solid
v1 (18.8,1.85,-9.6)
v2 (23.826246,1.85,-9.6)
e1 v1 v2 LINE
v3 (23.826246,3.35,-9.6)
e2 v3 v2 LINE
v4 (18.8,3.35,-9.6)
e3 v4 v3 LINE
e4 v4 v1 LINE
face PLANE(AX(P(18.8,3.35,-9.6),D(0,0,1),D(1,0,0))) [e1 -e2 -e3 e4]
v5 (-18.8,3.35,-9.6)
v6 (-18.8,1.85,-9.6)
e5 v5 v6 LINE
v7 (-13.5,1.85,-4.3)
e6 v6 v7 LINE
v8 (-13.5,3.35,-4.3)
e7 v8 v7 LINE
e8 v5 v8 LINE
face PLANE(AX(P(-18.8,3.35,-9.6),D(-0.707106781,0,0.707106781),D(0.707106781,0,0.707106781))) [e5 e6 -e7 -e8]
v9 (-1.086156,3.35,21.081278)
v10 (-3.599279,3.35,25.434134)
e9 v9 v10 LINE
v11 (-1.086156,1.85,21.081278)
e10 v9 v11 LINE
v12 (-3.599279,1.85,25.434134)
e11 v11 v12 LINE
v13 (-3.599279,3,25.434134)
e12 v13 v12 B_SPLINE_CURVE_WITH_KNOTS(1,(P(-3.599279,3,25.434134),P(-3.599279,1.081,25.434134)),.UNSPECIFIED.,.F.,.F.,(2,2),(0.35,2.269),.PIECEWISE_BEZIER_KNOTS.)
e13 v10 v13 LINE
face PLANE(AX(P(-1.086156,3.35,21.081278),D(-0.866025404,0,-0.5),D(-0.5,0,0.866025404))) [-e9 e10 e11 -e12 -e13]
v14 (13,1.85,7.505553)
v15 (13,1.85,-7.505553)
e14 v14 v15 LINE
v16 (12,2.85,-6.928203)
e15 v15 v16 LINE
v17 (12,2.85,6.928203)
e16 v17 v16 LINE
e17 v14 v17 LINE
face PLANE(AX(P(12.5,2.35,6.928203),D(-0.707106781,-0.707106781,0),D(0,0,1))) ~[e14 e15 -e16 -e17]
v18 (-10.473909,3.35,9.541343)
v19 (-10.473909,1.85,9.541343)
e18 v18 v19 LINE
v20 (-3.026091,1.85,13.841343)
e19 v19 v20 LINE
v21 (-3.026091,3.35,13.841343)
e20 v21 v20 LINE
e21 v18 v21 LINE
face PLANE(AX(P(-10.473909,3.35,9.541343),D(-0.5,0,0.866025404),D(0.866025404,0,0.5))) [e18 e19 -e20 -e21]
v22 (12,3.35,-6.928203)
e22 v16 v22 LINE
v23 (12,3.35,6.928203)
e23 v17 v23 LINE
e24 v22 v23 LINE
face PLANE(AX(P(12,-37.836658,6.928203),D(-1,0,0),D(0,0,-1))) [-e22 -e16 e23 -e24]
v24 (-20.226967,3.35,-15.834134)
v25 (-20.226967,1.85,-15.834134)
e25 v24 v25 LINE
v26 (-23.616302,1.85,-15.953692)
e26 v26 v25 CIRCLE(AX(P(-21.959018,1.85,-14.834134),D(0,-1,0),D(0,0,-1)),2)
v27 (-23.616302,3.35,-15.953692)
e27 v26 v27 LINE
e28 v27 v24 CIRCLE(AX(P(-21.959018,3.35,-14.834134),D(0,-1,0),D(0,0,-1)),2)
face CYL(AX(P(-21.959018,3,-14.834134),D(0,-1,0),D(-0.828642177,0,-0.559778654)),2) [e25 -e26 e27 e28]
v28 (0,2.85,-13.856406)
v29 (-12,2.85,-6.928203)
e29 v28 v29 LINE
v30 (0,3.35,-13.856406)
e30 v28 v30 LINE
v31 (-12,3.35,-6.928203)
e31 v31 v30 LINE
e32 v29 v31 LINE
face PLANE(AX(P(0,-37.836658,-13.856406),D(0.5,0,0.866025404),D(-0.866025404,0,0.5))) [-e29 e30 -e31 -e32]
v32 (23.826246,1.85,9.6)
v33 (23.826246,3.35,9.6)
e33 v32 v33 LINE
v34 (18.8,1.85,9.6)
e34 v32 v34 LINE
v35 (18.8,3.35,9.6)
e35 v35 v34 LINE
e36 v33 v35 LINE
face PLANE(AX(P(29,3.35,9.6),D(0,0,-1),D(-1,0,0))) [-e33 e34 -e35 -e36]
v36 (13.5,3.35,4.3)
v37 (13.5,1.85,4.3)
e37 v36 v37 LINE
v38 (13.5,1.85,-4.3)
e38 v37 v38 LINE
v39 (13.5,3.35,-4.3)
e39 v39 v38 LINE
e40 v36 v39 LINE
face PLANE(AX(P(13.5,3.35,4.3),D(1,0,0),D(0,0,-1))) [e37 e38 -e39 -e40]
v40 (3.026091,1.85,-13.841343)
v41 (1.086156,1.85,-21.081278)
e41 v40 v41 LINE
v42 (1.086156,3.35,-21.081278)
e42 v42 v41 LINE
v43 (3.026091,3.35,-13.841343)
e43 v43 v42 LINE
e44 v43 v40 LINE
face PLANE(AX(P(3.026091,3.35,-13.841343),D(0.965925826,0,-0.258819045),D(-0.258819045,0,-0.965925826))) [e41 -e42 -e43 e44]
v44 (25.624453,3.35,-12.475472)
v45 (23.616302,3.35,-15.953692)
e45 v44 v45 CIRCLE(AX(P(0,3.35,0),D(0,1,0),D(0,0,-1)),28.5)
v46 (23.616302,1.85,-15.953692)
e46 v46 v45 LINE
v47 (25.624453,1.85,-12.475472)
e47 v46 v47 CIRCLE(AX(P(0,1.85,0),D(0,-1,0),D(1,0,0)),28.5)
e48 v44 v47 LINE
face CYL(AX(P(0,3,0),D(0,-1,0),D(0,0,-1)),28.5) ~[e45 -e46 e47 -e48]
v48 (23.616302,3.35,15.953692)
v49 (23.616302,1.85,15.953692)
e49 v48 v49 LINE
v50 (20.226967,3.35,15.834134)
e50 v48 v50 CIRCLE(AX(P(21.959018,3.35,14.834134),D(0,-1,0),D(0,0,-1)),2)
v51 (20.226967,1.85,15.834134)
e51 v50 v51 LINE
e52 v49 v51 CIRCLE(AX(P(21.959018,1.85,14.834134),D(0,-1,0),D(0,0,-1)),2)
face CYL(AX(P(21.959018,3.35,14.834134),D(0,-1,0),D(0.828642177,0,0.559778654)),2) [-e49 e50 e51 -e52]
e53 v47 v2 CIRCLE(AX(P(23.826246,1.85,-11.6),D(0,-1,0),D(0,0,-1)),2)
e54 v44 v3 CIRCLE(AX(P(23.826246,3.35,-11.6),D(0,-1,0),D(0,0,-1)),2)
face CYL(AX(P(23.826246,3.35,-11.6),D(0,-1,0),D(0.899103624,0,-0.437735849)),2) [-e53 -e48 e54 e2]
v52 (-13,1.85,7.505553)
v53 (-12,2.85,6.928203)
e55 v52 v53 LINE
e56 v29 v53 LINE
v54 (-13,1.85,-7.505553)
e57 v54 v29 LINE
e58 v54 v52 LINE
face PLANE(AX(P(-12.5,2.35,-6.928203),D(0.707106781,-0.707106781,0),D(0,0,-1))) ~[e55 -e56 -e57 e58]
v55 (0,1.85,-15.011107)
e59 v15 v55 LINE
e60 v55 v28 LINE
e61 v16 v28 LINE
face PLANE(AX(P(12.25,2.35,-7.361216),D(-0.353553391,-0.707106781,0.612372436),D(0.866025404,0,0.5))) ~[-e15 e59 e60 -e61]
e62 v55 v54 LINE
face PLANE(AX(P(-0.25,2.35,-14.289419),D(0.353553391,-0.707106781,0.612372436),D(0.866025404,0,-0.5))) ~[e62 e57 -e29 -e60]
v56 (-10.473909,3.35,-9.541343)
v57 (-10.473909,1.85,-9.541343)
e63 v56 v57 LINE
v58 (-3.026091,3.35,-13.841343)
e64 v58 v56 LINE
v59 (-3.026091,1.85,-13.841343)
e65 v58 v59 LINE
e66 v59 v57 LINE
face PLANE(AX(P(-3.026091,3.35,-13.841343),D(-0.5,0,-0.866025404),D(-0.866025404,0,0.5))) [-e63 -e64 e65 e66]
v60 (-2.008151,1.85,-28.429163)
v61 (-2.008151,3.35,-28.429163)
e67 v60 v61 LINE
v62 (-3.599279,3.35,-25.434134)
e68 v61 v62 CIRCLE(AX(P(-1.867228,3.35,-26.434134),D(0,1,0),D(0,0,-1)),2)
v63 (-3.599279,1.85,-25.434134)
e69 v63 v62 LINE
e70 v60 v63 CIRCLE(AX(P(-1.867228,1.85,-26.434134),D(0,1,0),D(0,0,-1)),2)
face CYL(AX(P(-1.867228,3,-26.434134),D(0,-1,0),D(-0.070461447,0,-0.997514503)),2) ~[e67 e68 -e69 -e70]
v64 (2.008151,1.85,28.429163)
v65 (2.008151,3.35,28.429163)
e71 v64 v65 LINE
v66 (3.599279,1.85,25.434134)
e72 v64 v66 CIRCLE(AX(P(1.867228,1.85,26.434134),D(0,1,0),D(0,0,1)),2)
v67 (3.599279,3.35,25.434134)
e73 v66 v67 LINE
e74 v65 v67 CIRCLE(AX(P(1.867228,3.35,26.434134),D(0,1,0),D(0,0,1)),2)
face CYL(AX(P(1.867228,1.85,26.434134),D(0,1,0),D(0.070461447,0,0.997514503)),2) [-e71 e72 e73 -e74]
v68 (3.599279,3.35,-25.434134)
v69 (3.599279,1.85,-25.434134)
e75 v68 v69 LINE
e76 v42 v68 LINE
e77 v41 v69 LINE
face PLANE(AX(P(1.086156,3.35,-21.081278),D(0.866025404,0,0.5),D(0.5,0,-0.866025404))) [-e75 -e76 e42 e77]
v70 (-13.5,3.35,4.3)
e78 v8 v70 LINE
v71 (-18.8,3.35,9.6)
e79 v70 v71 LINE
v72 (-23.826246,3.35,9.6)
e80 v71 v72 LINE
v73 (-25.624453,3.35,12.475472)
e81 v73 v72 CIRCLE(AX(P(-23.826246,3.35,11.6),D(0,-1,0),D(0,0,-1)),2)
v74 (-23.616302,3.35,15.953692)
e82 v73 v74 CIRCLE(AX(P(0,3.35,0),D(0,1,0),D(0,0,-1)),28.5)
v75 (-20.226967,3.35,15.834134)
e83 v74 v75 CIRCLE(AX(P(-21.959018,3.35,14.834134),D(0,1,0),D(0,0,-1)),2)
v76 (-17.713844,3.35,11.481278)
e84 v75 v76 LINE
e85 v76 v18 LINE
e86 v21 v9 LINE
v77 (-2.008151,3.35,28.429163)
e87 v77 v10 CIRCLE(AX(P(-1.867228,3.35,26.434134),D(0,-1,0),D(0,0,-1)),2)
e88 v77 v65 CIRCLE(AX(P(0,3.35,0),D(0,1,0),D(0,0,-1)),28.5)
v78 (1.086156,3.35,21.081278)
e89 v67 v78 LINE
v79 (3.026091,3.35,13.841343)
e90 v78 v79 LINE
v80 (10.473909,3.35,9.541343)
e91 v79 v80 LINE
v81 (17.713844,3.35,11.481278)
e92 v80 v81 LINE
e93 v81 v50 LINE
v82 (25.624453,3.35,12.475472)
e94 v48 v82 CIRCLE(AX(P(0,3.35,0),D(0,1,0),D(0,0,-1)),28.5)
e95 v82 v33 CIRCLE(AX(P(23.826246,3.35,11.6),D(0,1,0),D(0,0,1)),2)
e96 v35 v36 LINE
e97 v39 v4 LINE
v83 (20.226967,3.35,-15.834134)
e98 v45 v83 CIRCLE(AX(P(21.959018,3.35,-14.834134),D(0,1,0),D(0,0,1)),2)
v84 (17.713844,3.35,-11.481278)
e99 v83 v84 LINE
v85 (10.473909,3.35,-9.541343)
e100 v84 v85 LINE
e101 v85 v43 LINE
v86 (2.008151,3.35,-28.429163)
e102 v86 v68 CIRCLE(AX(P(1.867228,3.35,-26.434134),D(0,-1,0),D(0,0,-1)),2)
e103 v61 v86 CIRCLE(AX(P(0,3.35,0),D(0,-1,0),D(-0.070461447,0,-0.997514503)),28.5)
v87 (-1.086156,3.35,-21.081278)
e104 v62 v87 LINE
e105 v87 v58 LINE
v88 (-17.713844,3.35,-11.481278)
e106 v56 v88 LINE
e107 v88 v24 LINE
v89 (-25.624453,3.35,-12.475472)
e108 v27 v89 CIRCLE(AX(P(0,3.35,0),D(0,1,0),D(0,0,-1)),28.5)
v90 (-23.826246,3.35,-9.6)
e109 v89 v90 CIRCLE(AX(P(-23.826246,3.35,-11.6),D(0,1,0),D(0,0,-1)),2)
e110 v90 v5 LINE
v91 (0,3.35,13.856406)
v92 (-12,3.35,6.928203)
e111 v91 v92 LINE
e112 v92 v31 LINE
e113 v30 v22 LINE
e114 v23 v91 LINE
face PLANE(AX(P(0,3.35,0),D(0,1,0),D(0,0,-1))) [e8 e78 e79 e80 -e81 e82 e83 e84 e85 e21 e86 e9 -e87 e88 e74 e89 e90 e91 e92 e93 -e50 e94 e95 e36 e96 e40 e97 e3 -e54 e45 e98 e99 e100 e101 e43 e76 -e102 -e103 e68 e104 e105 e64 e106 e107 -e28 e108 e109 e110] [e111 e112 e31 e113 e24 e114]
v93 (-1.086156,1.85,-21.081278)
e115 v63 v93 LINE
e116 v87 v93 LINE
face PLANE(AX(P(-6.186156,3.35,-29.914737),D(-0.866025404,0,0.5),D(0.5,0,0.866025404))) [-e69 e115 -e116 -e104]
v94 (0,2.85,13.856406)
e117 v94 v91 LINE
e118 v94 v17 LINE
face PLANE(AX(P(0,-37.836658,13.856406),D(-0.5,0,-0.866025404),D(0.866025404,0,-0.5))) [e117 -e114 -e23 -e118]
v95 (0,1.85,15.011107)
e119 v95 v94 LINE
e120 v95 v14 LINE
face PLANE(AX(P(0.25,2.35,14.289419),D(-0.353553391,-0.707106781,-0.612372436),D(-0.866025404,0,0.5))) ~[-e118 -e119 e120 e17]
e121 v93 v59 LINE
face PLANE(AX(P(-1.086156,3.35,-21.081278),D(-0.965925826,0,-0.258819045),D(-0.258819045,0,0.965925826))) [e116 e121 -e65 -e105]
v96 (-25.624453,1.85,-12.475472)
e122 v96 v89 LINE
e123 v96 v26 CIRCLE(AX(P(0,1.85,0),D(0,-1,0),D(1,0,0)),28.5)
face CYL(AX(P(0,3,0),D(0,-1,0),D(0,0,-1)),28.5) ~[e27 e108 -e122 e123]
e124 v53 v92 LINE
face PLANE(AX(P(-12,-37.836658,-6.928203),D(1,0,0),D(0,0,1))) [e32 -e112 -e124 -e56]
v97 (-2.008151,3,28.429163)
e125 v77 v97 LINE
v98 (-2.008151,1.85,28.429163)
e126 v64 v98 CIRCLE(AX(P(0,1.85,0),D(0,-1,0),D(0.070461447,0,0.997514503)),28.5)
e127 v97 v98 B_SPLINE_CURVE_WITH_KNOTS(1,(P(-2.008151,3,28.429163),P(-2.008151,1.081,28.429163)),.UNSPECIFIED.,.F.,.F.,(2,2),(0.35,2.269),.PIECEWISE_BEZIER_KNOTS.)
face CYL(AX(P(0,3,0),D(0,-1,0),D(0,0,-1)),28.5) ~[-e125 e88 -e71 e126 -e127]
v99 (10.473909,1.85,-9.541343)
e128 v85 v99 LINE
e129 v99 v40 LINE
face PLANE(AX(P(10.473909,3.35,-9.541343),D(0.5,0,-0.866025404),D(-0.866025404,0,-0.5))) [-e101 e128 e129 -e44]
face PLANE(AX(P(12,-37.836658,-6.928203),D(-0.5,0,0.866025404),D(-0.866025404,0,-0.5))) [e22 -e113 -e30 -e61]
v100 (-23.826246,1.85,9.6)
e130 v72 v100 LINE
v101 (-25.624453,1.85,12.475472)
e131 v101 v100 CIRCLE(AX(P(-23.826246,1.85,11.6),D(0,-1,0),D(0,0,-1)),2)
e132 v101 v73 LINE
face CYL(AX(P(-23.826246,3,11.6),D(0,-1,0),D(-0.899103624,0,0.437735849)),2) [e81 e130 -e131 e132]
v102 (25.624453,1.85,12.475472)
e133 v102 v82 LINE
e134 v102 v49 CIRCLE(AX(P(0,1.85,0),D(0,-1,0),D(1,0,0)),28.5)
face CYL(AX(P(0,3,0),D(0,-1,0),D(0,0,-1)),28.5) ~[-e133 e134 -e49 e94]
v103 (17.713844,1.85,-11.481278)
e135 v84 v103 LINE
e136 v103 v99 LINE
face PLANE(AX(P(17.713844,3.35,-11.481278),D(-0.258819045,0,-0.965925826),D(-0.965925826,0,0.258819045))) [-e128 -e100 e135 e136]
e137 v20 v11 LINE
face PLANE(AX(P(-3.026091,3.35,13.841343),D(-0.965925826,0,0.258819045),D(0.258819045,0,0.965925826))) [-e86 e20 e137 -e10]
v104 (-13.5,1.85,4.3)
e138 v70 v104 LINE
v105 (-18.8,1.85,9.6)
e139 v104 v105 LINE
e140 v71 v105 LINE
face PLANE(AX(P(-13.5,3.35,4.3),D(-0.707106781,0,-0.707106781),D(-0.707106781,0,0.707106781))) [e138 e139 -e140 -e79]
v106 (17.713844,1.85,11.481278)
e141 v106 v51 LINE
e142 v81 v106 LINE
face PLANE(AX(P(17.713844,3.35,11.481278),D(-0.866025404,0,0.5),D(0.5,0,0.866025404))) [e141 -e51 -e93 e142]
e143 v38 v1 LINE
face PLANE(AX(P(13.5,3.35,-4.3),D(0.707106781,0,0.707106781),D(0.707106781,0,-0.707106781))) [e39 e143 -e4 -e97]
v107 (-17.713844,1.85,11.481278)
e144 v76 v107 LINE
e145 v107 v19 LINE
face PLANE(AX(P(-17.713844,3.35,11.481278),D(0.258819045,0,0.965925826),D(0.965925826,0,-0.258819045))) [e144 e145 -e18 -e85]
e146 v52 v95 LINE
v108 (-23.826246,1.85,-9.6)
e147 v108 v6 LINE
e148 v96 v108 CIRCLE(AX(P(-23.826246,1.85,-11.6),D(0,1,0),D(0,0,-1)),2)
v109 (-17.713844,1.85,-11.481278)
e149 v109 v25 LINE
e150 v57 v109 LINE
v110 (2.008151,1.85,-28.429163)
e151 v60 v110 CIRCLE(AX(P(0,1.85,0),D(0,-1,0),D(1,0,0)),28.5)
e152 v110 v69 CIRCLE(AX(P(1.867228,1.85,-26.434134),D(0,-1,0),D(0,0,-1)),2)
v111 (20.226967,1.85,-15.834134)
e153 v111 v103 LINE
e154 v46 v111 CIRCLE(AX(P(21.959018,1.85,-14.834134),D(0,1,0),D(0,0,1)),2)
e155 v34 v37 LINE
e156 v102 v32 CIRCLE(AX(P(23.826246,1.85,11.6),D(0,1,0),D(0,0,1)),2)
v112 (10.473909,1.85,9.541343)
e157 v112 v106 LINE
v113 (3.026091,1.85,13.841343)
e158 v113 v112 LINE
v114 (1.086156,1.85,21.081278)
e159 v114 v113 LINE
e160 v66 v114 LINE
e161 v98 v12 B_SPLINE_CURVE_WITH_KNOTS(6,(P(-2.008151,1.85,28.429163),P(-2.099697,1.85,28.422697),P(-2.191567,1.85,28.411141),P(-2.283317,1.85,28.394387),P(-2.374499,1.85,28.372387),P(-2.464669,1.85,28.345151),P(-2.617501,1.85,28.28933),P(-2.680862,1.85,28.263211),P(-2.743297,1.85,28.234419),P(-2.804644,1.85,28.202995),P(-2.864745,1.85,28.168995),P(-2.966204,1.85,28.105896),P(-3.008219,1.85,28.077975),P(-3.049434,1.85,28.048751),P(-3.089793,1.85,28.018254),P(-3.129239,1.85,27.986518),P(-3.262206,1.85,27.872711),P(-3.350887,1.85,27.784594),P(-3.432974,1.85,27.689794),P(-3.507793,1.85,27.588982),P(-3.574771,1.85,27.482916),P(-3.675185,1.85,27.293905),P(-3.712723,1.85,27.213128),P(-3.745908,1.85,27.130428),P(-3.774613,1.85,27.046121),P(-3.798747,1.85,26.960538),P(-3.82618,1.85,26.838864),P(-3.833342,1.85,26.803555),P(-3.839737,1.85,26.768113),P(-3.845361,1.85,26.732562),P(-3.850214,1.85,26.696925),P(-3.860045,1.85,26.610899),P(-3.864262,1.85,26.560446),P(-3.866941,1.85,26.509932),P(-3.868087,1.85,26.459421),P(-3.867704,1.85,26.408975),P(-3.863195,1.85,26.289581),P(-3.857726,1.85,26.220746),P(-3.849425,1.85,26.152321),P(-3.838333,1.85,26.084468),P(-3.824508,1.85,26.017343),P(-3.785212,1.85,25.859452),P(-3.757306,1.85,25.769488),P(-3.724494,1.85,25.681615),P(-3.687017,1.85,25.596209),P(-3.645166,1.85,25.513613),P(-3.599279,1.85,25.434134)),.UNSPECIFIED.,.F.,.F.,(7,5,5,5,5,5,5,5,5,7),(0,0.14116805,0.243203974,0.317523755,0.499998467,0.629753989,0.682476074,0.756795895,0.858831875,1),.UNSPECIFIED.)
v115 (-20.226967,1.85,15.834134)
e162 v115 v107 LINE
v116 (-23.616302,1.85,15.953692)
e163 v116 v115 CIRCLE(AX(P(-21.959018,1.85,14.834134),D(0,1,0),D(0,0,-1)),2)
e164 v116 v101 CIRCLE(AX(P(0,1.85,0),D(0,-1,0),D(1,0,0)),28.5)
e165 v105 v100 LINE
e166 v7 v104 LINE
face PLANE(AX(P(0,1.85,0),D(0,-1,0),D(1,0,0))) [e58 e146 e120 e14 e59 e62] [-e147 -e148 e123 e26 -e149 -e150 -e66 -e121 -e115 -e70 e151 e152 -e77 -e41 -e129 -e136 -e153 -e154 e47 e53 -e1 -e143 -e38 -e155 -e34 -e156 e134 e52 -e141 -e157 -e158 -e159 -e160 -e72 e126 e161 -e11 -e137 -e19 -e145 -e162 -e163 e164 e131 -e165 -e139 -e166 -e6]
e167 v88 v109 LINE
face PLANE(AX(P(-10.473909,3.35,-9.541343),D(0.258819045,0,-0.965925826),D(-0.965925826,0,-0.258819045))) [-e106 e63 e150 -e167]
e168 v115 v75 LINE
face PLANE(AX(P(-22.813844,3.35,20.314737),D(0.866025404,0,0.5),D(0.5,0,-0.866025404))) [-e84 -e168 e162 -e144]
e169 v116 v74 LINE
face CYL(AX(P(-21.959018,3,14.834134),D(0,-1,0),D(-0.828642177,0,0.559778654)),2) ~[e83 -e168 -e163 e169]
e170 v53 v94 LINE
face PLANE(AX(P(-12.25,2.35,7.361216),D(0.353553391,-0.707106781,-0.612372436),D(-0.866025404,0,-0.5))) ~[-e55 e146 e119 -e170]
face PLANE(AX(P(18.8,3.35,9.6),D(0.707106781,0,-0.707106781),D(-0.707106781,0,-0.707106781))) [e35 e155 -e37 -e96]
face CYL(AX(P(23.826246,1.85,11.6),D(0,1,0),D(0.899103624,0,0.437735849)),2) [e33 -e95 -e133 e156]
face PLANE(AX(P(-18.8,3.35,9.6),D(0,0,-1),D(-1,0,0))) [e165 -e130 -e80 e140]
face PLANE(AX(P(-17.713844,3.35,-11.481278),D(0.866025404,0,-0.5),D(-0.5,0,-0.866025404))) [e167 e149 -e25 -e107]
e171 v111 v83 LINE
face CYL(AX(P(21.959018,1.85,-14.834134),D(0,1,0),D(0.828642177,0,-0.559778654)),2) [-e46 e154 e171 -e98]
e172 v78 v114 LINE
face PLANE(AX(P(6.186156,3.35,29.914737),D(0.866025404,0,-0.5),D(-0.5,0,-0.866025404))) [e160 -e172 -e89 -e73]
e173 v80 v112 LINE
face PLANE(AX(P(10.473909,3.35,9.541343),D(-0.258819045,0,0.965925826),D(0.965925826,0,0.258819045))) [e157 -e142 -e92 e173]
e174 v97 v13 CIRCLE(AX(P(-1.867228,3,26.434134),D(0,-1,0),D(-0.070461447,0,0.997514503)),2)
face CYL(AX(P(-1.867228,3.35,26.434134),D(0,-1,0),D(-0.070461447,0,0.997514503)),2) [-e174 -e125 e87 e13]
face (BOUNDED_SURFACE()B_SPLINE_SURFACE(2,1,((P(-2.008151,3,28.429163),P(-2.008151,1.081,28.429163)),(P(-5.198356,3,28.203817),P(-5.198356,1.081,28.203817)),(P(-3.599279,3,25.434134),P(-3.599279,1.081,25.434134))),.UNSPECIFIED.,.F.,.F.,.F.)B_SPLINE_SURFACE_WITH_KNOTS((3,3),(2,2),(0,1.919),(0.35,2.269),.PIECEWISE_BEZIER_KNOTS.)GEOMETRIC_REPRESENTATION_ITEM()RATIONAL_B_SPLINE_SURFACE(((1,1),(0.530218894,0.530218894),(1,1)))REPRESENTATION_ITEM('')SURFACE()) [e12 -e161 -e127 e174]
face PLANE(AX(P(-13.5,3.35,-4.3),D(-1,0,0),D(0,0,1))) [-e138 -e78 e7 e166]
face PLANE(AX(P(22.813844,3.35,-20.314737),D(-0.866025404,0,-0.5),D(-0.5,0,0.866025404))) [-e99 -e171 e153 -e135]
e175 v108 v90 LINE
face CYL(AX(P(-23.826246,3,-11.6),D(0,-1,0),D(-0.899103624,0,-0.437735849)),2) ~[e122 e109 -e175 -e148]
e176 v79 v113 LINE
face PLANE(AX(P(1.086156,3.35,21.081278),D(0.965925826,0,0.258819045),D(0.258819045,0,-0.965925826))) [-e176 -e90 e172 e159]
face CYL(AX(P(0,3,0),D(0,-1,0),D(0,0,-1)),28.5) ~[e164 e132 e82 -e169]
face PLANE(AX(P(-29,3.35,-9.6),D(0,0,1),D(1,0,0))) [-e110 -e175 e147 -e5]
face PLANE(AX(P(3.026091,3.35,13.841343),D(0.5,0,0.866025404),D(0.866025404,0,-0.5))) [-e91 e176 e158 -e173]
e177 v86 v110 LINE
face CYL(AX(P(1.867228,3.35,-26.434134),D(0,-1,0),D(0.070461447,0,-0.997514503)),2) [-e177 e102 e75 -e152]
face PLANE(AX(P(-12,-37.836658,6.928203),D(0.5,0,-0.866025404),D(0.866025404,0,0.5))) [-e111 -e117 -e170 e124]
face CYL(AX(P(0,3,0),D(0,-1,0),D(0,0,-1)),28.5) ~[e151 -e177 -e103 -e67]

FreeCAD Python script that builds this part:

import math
import FreeCAD as App
import Part
import Sketcher
from FreeCAD import Vector
Q = App.Units.Quantity


def edges_at(feature, points):
    """Names of the edges that pass closest to the given points."""
    edges = feature.Shape.Edges
    near = lambda p: min(range(len(edges)), key=lambda i: edges[i].distToShape(Part.Vertex(*p))[0])
    return sorted({f"Edge{near(p) + 1}" for p in points})


def add_polygon(sketch, points):
    """Adds a closed chain of lines whose ends are joined by coincident constraints."""
    first, n = sketch.GeometryCount, len(points)
    for a, b in zip(points, points[1:] + points[:1]):
        sketch.addGeometry(Part.LineSegment(App.Vector(*a, 0), App.Vector(*b, 0)), False)
    for i in range(n):
        sketch.addConstraint(Sketcher.Constraint("Coincident", first + i, 2, first + (i + 1) % n, 1))

doc = App.newDocument("Part")
body = doc.addObject("PartDesign::Body", "Body")

# Sketch on XZ plane
sketch1 = doc.addObject("Sketcher::SketchObject", "Sketch")
body.addObject(sketch1)
sketch1.AttachmentSupport = (doc.XZ_Plane, [""])
sketch1.MapMode = "FlatFace"
sketch1.addGeometry([
    Part.Circle(Vector(0, 0, 0), Vector(0, 0, 1), 28),
    Part.Circle(Vector(0, 0, 0), Vector(0, 0, 1), 13),
], False)
sketch1.addConstraint([
    Sketcher.Constraint("Coincident", 0, 3, -1, 1),
    Sketcher.Constraint("Coincident", 1, 3, -1, 1),
    Sketcher.Constraint("Diameter", 0, Q("57 mm")),
    Sketcher.Constraint("Diameter", 1, Q("25.4 mm")),
])
pad1 = doc.addObject("PartDesign::Pad", "Pad")
body.addObject(pad1)
pad1.Profile = sketch1
pad1.Length = 2
pad1.Reversed = True

# Sketch on XZ plane
sketch2 = doc.addObject("Sketcher::SketchObject", "Sketch001")
body.addObject(sketch2)
sketch2.AttachmentSupport = (doc.XZ_Plane, [""])
sketch2.MapMode = "FlatFace"
sketch2.AttachmentOffset = App.Placement(Vector(0, 0, -2), App.Rotation())
sketch2.addGeometry(Part.Circle(Vector(0, 0, 0), Vector(0, 0, 1), 28), False)
sketch2.addConstraint([
    Sketcher.Constraint("Coincident", 0, 3, -1, 1),
    Sketcher.Constraint("Diameter", 0, Q("57 mm")),
])
pad2 = doc.addObject("PartDesign::Pad", "Pad001")
body.addObject(pad2)
pad2.Profile = sketch2
pad2.Length = 1
pad2.Reversed = True

# Sketch on XZ plane
sketch3 = doc.addObject("Sketcher::SketchObject", "Sketch002")
body.addObject(sketch3)
sketch3.AttachmentSupport = (doc.XZ_Plane, [""])
sketch3.MapMode = "FlatFace"
sketch3.AttachmentOffset = App.Placement(Vector(0, 0, -3), App.Rotation())
sketch3.addGeometry(Part.Circle(Vector(0, 0, 0), Vector(0, 0, 1), 11), False)
sketch3.addConstraint([
    Sketcher.Constraint("Coincident", 0, 3, -1, 1),
    Sketcher.Constraint("Diameter", 0, Q("22 mm")),
])
pad3 = doc.addObject("PartDesign::Pad", "Pad002")
body.addObject(pad3)
pad3.Profile = sketch3
pad3.Length = 7
pad3.Reversed = True

# Sketch on XZ plane
sketch4 = doc.addObject("Sketcher::SketchObject", "Sketch003")
body.addObject(sketch4)
sketch4.AttachmentSupport = (doc.XZ_Plane, [""])
sketch4.MapMode = "FlatFace"
sketch4.AttachmentOffset = App.Placement(Vector(0, 0, -10), App.Rotation())
sketch4.addGeometry(Part.Circle(Vector(0, 0, 0), Vector(0, 0, 1), 10), False)
sketch4.addConstraint([
    Sketcher.Constraint("Coincident", 0, 3, -1, 1),
    Sketcher.Constraint("Diameter", 0, Q("19.3 mm")),
])
pocket1 = doc.addObject("PartDesign::Pocket", "Pocket")
body.addObject(pocket1)
pocket1.Profile = sketch4
pocket1.Type = "ThroughAll"
pocket1.Midplane = True

# Sketch on XZ plane
sketch5 = doc.addObject("Sketcher::SketchObject", "Sketch004")
body.addObject(sketch5)
sketch5.AttachmentSupport = (doc.XZ_Plane, [""])
sketch5.MapMode = "FlatFace"
sketch5.AttachmentOffset = App.Placement(Vector(0, 0, -10), App.Rotation())
sketch5.addGeometry([
    Part.Circle(Vector(0, 0, 0), Vector(0, 0, 1), 11),
    Part.Circle(Vector(0, 0, 0), Vector(0, 0, 1), 8),
], False)
sketch5.addConstraint([
    Sketcher.Constraint("Coincident", 0, 3, -1, 1),
    Sketcher.Constraint("Coincident", 1, 3, -1, 1),
    Sketcher.Constraint("Diameter", 0, Q("22 mm")),
    Sketcher.Constraint("Diameter", 1, Q("16 mm")),
])
pad4 = doc.addObject("PartDesign::Pad", "Pad003")
body.addObject(pad4)
pad4.Profile = sketch5
pad4.Length = 5
pad4.Reversed = True

# Sketch on XZ plane
sketch6 = doc.addObject("Sketcher::SketchObject", "Sketch005")
body.addObject(sketch6)
sketch6.AttachmentSupport = (doc.XZ_Plane, [""])
sketch6.MapMode = "FlatFace"
sketch6.AttachmentOffset = App.Placement(Vector(0, 0, -2), App.Rotation())
sketch6.addGeometry([
    Part.Circle(Vector(0, 0, 0), Vector(0, 0, 1), 13),
    Part.Circle(Vector(0, 0, 0), Vector(0, 0, 1), 10),
], False)
sketch6.addConstraint([
    Sketcher.Constraint("Coincident", 0, 3, -1, 1),
    Sketcher.Constraint("Coincident", 1, 3, -1, 1),
    Sketcher.Constraint("Diameter", 0, Q("25.4 mm")),
    Sketcher.Constraint("Diameter", 1, Q("19.3 mm")),
])
pad5 = doc.addObject("PartDesign::Pad", "Pad004")
body.addObject(pad5)
pad5.Profile = sketch6
pad5.Length = 2

# Sketch on XZ plane
sketch7 = doc.addObject("Sketcher::SketchObject", "Sketch006")
body.addObject(sketch7)
sketch7.AttachmentSupport = (doc.XZ_Plane, [""])
sketch7.MapMode = "FlatFace"
sketch7.addGeometry(Part.Circle(Vector(0, 0, 0), Vector(0, 0, 1), 28), False)
sketch7.addConstraint([
    Sketcher.Constraint("Coincident", 0, 3, -1, 1),
    Sketcher.Constraint("Diameter", 0, Q("57 mm")),
])
pocket2 = doc.addObject("PartDesign::Pocket", "Pocket001")
body.addObject(pocket2)
pocket2.Profile = sketch7
pocket2.Length = 1

# Sketch on XZ plane
sketch8 = doc.addObject("Sketcher::SketchObject", "Sketch007")
body.addObject(sketch8)
sketch8.AttachmentSupport = (doc.XZ_Plane, [""])
sketch8.MapMode = "FlatFace"
sketch8.AttachmentOffset = App.Placement(Vector(0, 0, -1), App.Rotation())
add_polygon(sketch8, [(24.5, 2), (24.5, -2), (26.5, -2), (26.5, 2)])  # lines 0-3
add_polygon(sketch8, [(-26.5, 2), (-26.5, -2), (-24.5, -2), (-24.5, 2)])  # lines 4-7
sketch8.addConstraint([
    Sketcher.Constraint("Vertical", 0),
    Sketcher.Constraint("Horizontal", 1),
    Sketcher.Constraint("Vertical", 2),
    Sketcher.Constraint("Horizontal", 3),
    Sketcher.Constraint("Vertical", 4),
    Sketcher.Constraint("Horizontal", 5),
    Sketcher.Constraint("Vertical", 6),
    Sketcher.Constraint("Horizontal", 7),
    Sketcher.Constraint("Symmetric", 2, 2, 4, 2, -1, 1),
    Sketcher.Constraint("Symmetric", 0, 2, 6, 2, -1, 1),
    Sketcher.Constraint("Horizontal", 1, 2, 4, 2),
    Sketcher.Constraint("DistanceX", 1, 1, 1, 2, Q("2 mm")),
    Sketcher.Constraint("DistanceY", 0, 2, 0, 1, Q("4 mm")),
    Sketcher.Constraint("DistanceX", 4, 2, 0, 2, Q("51 mm")),
])
pad6 = doc.addObject("PartDesign::Pad", "Pad005")
body.addObject(pad6)
pad6.Profile = sketch8
pad6.Length = 2
doc.recompute()

fillet = doc.addObject("PartDesign::Fillet", "Fillet")
body.addObject(fillet)
fillet.Base = (pad6, edges_at(pad6, [
    (24.5, 0, 2),
    (24.5, 0, -2),
    (26.5, 0, -2),
    (26.5, 0, 2),
    (-24.5, 0, -2),
    (-24.5, 0, 2),
    (-26.5, 0, 2),
    (-26.5, 0, -2),
]))
fillet.Radius = 0.5

# Sketch on XZ plane
sketch9 = doc.addObject("Sketcher::SketchObject", "Sketch008")
body.addObject(sketch9)
sketch9.AttachmentSupport = (doc.XZ_Plane, [""])
sketch9.MapMode = "FlatFace"
sketch9.AttachmentOffset = App.Placement(Vector(0, 0, -3), App.Rotation())
sketch9.addGeometry([
    Part.Circle(Vector(0, 0, 0), Vector(0, 0, 1), 28),
    Part.Circle(Vector(0, 0, 0), Vector(0, 0, 1), 11),
], False)
sketch9.addConstraint([
    Sketcher.Constraint("Coincident", 0, 3, -1, 1),
    Sketcher.Constraint("Coincident", 1, 3, -1, 1),
    Sketcher.Constraint("Diameter", 0, Q("57 mm")),
    Sketcher.Constraint("Diameter", 1, Q("22 mm")),
])
pad7 = doc.addObject("PartDesign::Pad", "Pad006")
body.addObject(pad7)
pad7.Profile = sketch9
pad7.Length = 0.35
pad7.Reversed = True

# Sketch on XZ plane
sketch10 = doc.addObject("Sketcher::SketchObject", "Sketch009")
body.addObject(sketch10)
sketch10.AttachmentSupport = (doc.XZ_Plane, [""])
sketch10.MapMode = "FlatFace"
sketch10.AttachmentOffset = App.Placement(Vector(0, 0, -15), App.Rotation())
add_polygon(sketch10, [(0, 13), (11, 6), (11, -6), (0, -13), (-11, -6), (-11, 6)])  # lines 0-5
sketch10.addGeometry(Part.Circle(Vector(0, 0, 0), Vector(0, 0, 1), 10), False)  # 6
sketch10.addConstraint([
    Sketcher.Constraint("Vertical", 1),
    Sketcher.Constraint("Vertical", 4),
    Sketcher.Constraint("Coincident", 6, 3, -1, 1),
    Sketcher.Constraint("Symmetric", 0, 2, 3, 2, -1, 1),
    Sketcher.Constraint("Symmetric", 2, 2, 5, 2, -1, 1),
    Sketcher.Constraint("PointOnObject", 2, 2, -2),
    Sketcher.Constraint("Parallel", 2, 5),
    Sketcher.Constraint("Horizontal", 1, 2, 3, 2),
    Sketcher.Constraint("Diameter", 6, Q("19.3 mm")),
    Sketcher.Constraint("Angle", 0, Q("-30 deg")),
    Sketcher.Constraint("DistanceX", 3, 2, 1, 2, Q("22.5 mm")),
    Sketcher.Constraint("DistanceY", 1, 2, 1, 1, Q("12.990381 mm")),
])
pad8 = doc.addObject("PartDesign::Pad", "Pad007")
body.addObject(pad8)
pad8.Profile = sketch10
pad8.Length = 11.65

# Sketch on XZ plane
sketch11 = doc.addObject("Sketcher::SketchObject", "Sketch010")
body.addObject(sketch11)
sketch11.AttachmentSupport = (doc.XZ_Plane, [""])
sketch11.MapMode = "FlatFace"
sketch11.AttachmentOffset = App.Placement(Vector(0, 0, -3.35), App.Rotation())
add_polygon(sketch11, [(-23, 20), (-6, 30), (-1, 21), (-3, 14), (-10, 10), (-18, 11)])  # lines 0-5
add_polygon(sketch11, [(-19, 10), (-14, 4), (-14, -4), (-19, -10), (-29, -10), (-29, 10)])  # lines 6-11
add_polygon(sketch11, [(-18, -11), (-10, -10), (-3, -14), (-1, -21), (-6, -30), (-23, -20)])  # lines 12-17
add_polygon(sketch11, [(1, -21), (3, -14), (10, -10), (18, -11), (23, -20), (6, -30)])  # lines 18-23
add_polygon(sketch11, [(19, -10), (14, -4), (14, 4), (19, 10), (29, 10), (29, -10)])  # lines 24-29
add_polygon(sketch11, [(18, 11), (10, 10), (3, 14), (1, 21), (6, 30), (23, 20)])  # lines 30-35
sketch11.addConstraint([
    Sketcher.Constraint("Vertical", 7),
    Sketcher.Constraint("Horizontal", 9),
    Sketcher.Constraint("Vertical", 10),
    Sketcher.Constraint("Horizontal", 11),
    Sketcher.Constraint("Vertical", 25),
    Sketcher.Constraint("Horizontal", 27),
    Sketcher.Constraint("Vertical", 28),
    Sketcher.Constraint("Horizontal", 29),
    Sketcher.Constraint("Symmetric", 2, 2, 18, 2, -1, 1),
    Sketcher.Constraint("Symmetric", 3, 2, 19, 2, -1, 1),
    Sketcher.Constraint("Symmetric", 4, 2, 20, 2, -1, 1),
    Sketcher.Constraint("Symmetric", 5, 2, 21, 2, -1, 1),
    Sketcher.Constraint("Symmetric", 0, 2, 22, 2, -1, 1),
    Sketcher.Constraint("Symmetric", 1, 2, 23, 2, -1, 1),
    Sketcher.Constraint("Symmetric", 6, 2, 24, 2, -1, 1),
    Sketcher.Constraint("Symmetric", 8, 2, 26, 2, -1, 1),
    Sketcher.Constraint("Symmetric", 10, 2, 28, 2, -1, 1),
    Sketcher.Constraint("Symmetric", 12, 2, 30, 2, -1, 1),
    Sketcher.Constraint("Symmetric", 13, 2, 31, 2, -1, 1),
    Sketcher.Constraint("Symmetric", 14, 2, 32, 2, -1, 1),
    Sketcher.Constraint("Symmetric", 15, 2, 33, 2, -1, 1),
    Sketcher.Constraint("Symmetric", 16, 2, 34, 2, -1, 1),
    Sketcher.Constraint("Symmetric", 17, 2, 35, 2, -1, 1),
    Sketcher.Constraint("Symmetric", 13, 2, 18, 2, -2),
    Sketcher.Constraint("Symmetric", 12, 2, 19, 2, -2),
    Sketcher.Constraint("Symmetric", 17, 2, 20, 2, -2),
    Sketcher.Constraint("Symmetric", 16, 2, 21, 2, -2),
    Sketcher.Constraint("Symmetric", 15, 2, 22, 2, -2),
    Sketcher.Constraint("Symmetric", 14, 2, 23, 2, -2),
    Sketcher.Constraint("Symmetric", 11, 2, 26, 2, -2),
    Sketcher.Constraint("Perpendicular", 0, 1),
    Sketcher.Constraint("Perpendicular", 1, 3),
    Sketcher.Constraint("Perpendicular", 2, 4),
    Sketcher.Constraint("Perpendicular", 3, 5),
    Sketcher.Constraint("Perpendicular", 6, 8),
    Sketcher.Constraint("Perpendicular", 8, 24),
    Sketcher.Constraint("Perpendicular", 24, 26),
    Sketcher.Constraint("Horizontal", 7, 2, 24, 2),
    Sketcher.Constraint("Equal", 2, 4),
    Sketcher.Constraint("Equal", 1, 5),
    Sketcher.Constraint("Equal", 4, 6),
    Sketcher.Constraint("Angle", 0, Q("30 deg")),
    Sketcher.Constraint("DistanceX", 9, 2, 9, 1, Q("10.2 mm")),
    Sketcher.Constraint("DistanceY", 7, 2, 7, 1, Q("8.6 mm")),
    Sketcher.Constraint("DistanceY", 10, 1, 10, 2, Q("19.2 mm")),
    Sketcher.Constraint("DistanceX", 9, 2, -1, 1, Q("29 mm")),
    Sketcher.Constraint("Distance", 0, Q("19.2 mm")),
    Sketcher.Constraint("Distance", 1, Q("10.2 mm")),
    Sketcher.Constraint("DistanceX", 12, 2, 18, 2, Q("13.5 mm")),
    Sketcher.Constraint("DistanceY", -1, 1, 0, 2, Q("29.914737 mm")),
])
pocket3 = doc.addObject("PartDesign::Pocket", "Pocket002")
body.addObject(pocket3)
pocket3.Profile = sketch11
pocket3.Length = 1.5
pocket3.Reversed = True
doc.recompute()

chamfer = doc.addObject("PartDesign::Chamfer", "Chamfer")
body.addObject(chamfer)
chamfer.Base = (pocket3, edges_at(pocket3, [(0, 10, -8)]))
chamfer.Size = 1
doc.recompute()

fillet2 = doc.addObject("PartDesign::Fillet", "Fillet001")
body.addObject(fillet2)
fillet2.Base = (chamfer, edges_at(chamfer, [
    (-21.731, 2.425, 18.439),
    (-5.103, 2.425, 28.039),
    (21.731, 2.6, 18.439),
    (5.103, 2.6, 28.039),
    (5.103, 2.6, -28.039),
    (21.731, 2.6, -18.439),
    (26.834, 2.6, -9.6),
    (26.834, 2.6, 9.6),
    (-26.834, 2.425, 9.6),
    (-26.834, 2.425, -9.6),
    (-21.731, 2.425, -18.439),
    (-5.103, 2.425, -28.039),
]))
fillet2.Radius = 2

# Sketch on XZ plane
sketch12 = doc.addObject("Sketcher::SketchObject", "Sketch011")
body.addObject(sketch12)
sketch12.AttachmentSupport = (doc.XZ_Plane, [""])
sketch12.MapMode = "FlatFace"
sketch12.AttachmentOffset = App.Placement(Vector(0, 0, -1), App.Rotation())
sketch12.addGeometry(Part.Circle(Vector(0, 0, 0), Vector(0, 0, 1), 10), False)
sketch12.addConstraint([
    Sketcher.Constraint("Coincident", 0, 3, -1, 1),
    Sketcher.Constraint("Diameter", 0, Q("19.34 mm")),
])
pocket4 = doc.addObject("PartDesign::Pocket", "Pocket003")
body.addObject(pocket4)
pocket4.Profile = sketch12
pocket4.Length = 9
doc.recompute()

polarpattern = doc.addObject("PartDesign::PolarPattern", "PolarPattern")
body.addObject(polarpattern)
polarpattern.Originals = [pad6]
polarpattern.Axis = (doc.Y_Axis, [""])
polarpattern.Angle = 30
polarpattern.Occurrences = 2
polarpattern.Reversed = True
body.Tip = polarpattern

# Sketch on XZ plane
sketch13 = doc.addObject("Sketcher::SketchObject", "Sketch012")
body.addObject(sketch13)
sketch13.AttachmentSupport = (doc.XZ_Plane, [""])
sketch13.MapMode = "FlatFace"
sketch13.AttachmentOffset = App.Placement(Vector(0, 0, -1), App.Rotation())
add_polygon(sketch13, [(-26.9, 2.5), (-26.9, -2.5), (-24.1, -2.5), (-24.1, 2.5)])  # lines 0-3
add_polygon(sketch13, [(24.1, 2.8), (24.1, -2.8), (26.9, -2.8), (26.9, 2.8)])  # lines 4-7
sketch13.addConstraint([
    Sketcher.Constraint("Vertical", 0),
    Sketcher.Constraint("Horizontal", 1),
    Sketcher.Constraint("Vertical", 2),
    Sketcher.Constraint("Horizontal", 3),
    Sketcher.Constraint("Vertical", 4),
    Sketcher.Constraint("Horizontal", 5),
    Sketcher.Constraint("Vertical", 6),
    Sketcher.Constraint("Horizontal", 7),
    Sketcher.Constraint("DistanceX", 1, 1, 1, 2, Q("2.80028 mm")),
    Sketcher.Constraint("DistanceY", 0, 2, 0, 1, Q("4.910481 mm")),
    Sketcher.Constraint("DistanceY", 4, 2, 4, 1, Q("5.674761 mm")),
    Sketcher.Constraint("DistanceX", 5, 1, 5, 2, Q("2.857295 mm")),
    Sketcher.Constraint("DistanceX", 0, 2, -1, 1, Q("26.90014 mm")),
    Sketcher.Constraint("DistanceY", 0, 2, -1, 1, Q("2.45524 mm")),
    Sketcher.Constraint("DistanceY", 4, 2, -1, 1, Q("2.83738 mm")),
    Sketcher.Constraint("DistanceX", -1, 1, 4, 2, Q("24.071353 mm")),
])
pocket5 = doc.addObject("PartDesign::Pocket", "Pocket004")
body.addObject(pocket5)
pocket5.Profile = sketch13
pocket5.Length = 10
pocket5.Reversed = True

# Sketch on XZ plane
sketch14 = doc.addObject("Sketcher::SketchObject", "Sketch013")
body.addObject(sketch14)
sketch14.AttachmentSupport = (doc.XZ_Plane, [""])
sketch14.MapMode = "FlatFace"
sketch14.AttachmentOffset = App.Placement(Vector(0, 0, -1), App.Rotation())
sketch14.addGeometry(Part.Circle(Vector(0, 0, 0), Vector(0, 0, 1), 28.5), False)  # 0
add_polygon(sketch14, [(-21.9, -15), (-23.9, -11.5), (-22.2, -10.5), (-20.2, -14)])  # lines 1-4
add_polygon(sketch14, [(20.2, 14), (21.9, 15), (23.9, 11.5), (22.2, 10.5)])  # lines 5-8
sketch14.addConstraint([
    Sketcher.Constraint("Coincident", 0, 3, -1, 1),
    Sketcher.Constraint("Symmetric", 4, 2, 5, 2, -1, 1),
    Sketcher.Constraint("Symmetric", 1, 2, 6, 2, -1, 1),
    Sketcher.Constraint("Symmetric", 2, 2, 7, 2, -1, 1),
    Sketcher.Constraint("Symmetric", 3, 2, 8, 2, -1, 1),
    Sketcher.Constraint("Perpendicular", 1, 2),
    Sketcher.Constraint("Perpendicular", 2, 3),
    Sketcher.Constraint("Perpendicular", 3, 4),
    Sketcher.Constraint("Diameter", 0, Q("57 mm")),
    Sketcher.Constraint("Angle", 1, Q("120 deg")),
    Sketcher.Constraint("Distance", 1, Q("4 mm")),
    Sketcher.Constraint("Distance", 2, Q("2 mm")),
    Sketcher.Constraint("DistanceY", 2, 2, 5, 2, Q("25.5 mm")),
    Sketcher.Constraint("DistanceX", 1, 2, -1, 1, Q("23.949673 mm")),
])
pocket6 = doc.addObject("PartDesign::Pocket", "Pocket005")
body.addObject(pocket6)
pocket6.Profile = sketch14
pocket6.Length = 0.85
doc.recompute()

fillet3 = doc.addObject("PartDesign::Fillet", "Fillet002")
body.addObject(fillet3)
fillet3.Base = (pocket6, edges_at(pocket6, [
    (20.218, 0, 13.982),
    (22.218, 0, 10.518),
    (23.95, 0, 11.518),
    (21.95, 0, 14.982),
    (-20.218, 0, -13.982),
    (-22.218, 0, -10.518),
    (-23.95, 0, -11.518),
    (-21.95, 0, -14.982),
]))
fillet3.Radius = 0.5

# Sketch on XZ plane
sketch15 = doc.addObject("Sketcher::SketchObject", "Sketch014")
body.addObject(sketch15)
sketch15.AttachmentSupport = (doc.XZ_Plane, [""])
sketch15.MapMode = "FlatFace"
sketch15.AttachmentOffset = App.Placement(Vector(0, 0, 1), App.Rotation())
sketch15.addGeometry(Part.Circle(Vector(0, 0, 0), Vector(0, 0, 1), 69), False)
sketch15.addConstraint([
    Sketcher.Constraint("Coincident", 0, 3, -1, 1),
    Sketcher.Constraint("Diameter", 0, Q("137.294301 mm")),
])
pocket7 = doc.addObject("PartDesign::Pocket", "Pocket006")
body.addObject(pocket7)
pocket7.Profile = sketch15
pocket7.Length = 0.7

# Sketch on XZ plane
sketch16 = doc.addObject("Sketcher::SketchObject", "Sketch015")
body.addObject(sketch16)
sketch16.AttachmentSupport = (doc.XZ_Plane, [""])
sketch16.MapMode = "FlatFace"
sketch16.AttachmentOffset = App.Placement(Vector(0, 0, -3.35), App.Rotation())
add_polygon(sketch16, [(0, -14), (-12, -7), (-12, 7), (0, 14), (12, 7), (12, -7)])  # lines 0-5
sketch16.addConstraint([
    Sketcher.Constraint("Vertical", 1),
    Sketcher.Constraint("Vertical", 4),
    Sketcher.Constraint("Symmetric", 0, 2, 3, 2, -1, 1),
    Sketcher.Constraint("Symmetric", 2, 2, 5, 2, -1, 1),
    Sketcher.Constraint("PointOnObject", 2, 2, -2),
    Sketcher.Constraint("Parallel", 2, 5),
    Sketcher.Constraint("Horizontal", 1, 2, 3, 2),
    Sketcher.Constraint("Angle", 0, Q("150 deg")),
    Sketcher.Constraint("DistanceX", 0, 2, -1, 1, Q("12 mm")),
    Sketcher.Constraint("DistanceY", 1, 1, 1, 2, Q("13.856406 mm")),
])
pocket8 = doc.addObject("PartDesign::Pocket", "Pocket007")
body.addObject(pocket8)
pocket8.Profile = sketch16
pocket8.Type = "ThroughAll"
pocket8.Midplane = True

# Sketch on XZ plane
sketch17 = doc.addObject("Sketcher::SketchObject", "Sketch016")
body.addObject(sketch17)
sketch17.AttachmentSupport = (doc.XZ_Plane, [""])
sketch17.MapMode = "FlatFace"
sketch17.AttachmentOffset = App.Placement(Vector(0, 0, 8.15), App.Rotation())
sketch17.addGeometry([
    Part.LineSegment(Vector(3.6, -25.4, 0), Vector(1.1, -21.1, 0)),  # 0
    Part.LineSegment(Vector(1.1, -21.1, 0), Vector(3, -13.8, 0)),  # 1
    Part.LineSegment(Vector(3, -13.8, 0), Vector(10.5, -9.5, 0)),  # 2
    Part.LineSegment(Vector(10.5, -9.5, 0), Vector(17.7, -11.5, 0)),  # 3
    Part.LineSegment(Vector(17.7, -11.5, 0), Vector(20.2, -15.8, 0)),  # 4
    Part.ArcOfCircle(Part.Circle(Vector(22, -14.8, 0), Vector(0, 0, 1), 2), math.radians(-150), math.radians(-34)),  # 5
    Part.ArcOfCircle(Part.Circle(Vector(0, 0, 0), Vector(0, 0, 1), 28.5), math.radians(-34.04), math.radians(-25.96)),  # 6
    Part.ArcOfCircle(Part.Circle(Vector(23.8, -11.6, 0), Vector(0, 0, 1), 2), math.radians(-26), math.radians(90)),  # 7
    Part.LineSegment(Vector(23.8, -9.6, 0), Vector(18.8, -9.6, 0)),  # 8
    Part.LineSegment(Vector(18.8, -9.6, 0), Vector(13.5, -4.3, 0)),  # 9
    Part.LineSegment(Vector(13.5, -4.3, 0), Vector(13.5, 4.3, 0)),  # 10
    Part.LineSegment(Vector(13.5, 4.3, 0), Vector(18.8, 9.6, 0)),  # 11
    Part.LineSegment(Vector(18.8, 9.6, 0), Vector(23.8, 9.6, 0)),  # 12
    Part.ArcOfCircle(Part.Circle(Vector(23.8, 11.6, 0), Vector(0, 0, 1), 2), math.radians(-90), math.radians(26)),  # 13
    Part.ArcOfCircle(Part.Circle(Vector(0, 0, 0), Vector(0, 0, 1), 28.5), math.radians(25.96), math.radians(34.04)),  # 14
    Part.ArcOfCircle(Part.Circle(Vector(22, 14.8, 0), Vector(0, 0, 1), 2), math.radians(34), math.radians(150)),  # 15
    Part.LineSegment(Vector(20.2, 15.8, 0), Vector(17.7, 11.5, 0)),  # 16
    Part.LineSegment(Vector(17.7, 11.5, 0), Vector(10.5, 9.5, 0)),  # 17
    Part.LineSegment(Vector(10.5, 9.5, 0), Vector(3, 13.8, 0)),  # 18
    Part.LineSegment(Vector(3, 13.8, 0), Vector(1.1, 21.1, 0)),  # 19
    Part.LineSegment(Vector(1.1, 21.1, 0), Vector(3.6, 25.4, 0)),  # 20
    Part.ArcOfCircle(Part.Circle(Vector(1.9, 26.4, 0), Vector(0, 0, 1), 2), math.radians(-30), math.radians(86)),  # 21
    Part.ArcOfCircle(Part.Circle(Vector(0, 0, 0), Vector(0, 0, 1), 28.5), math.radians(85.96), math.radians(94.04)),  # 22
    Part.ArcOfCircle(Part.Circle(Vector(-1.9, 26.4, 0), Vector(0, 0, 1), 2), math.radians(94), math.radians(210)),  # 23
    Part.LineSegment(Vector(-3.6, 25.4, 0), Vector(-1.1, 21.1, 0)),  # 24
    Part.LineSegment(Vector(-1.1, 21.1, 0), Vector(-3, 13.8, 0)),  # 25
    Part.LineSegment(Vector(-3, 13.8, 0), Vector(-10.5, 9.5, 0)),  # 26
    Part.LineSegment(Vector(-10.5, 9.5, 0), Vector(-17.7, 11.5, 0)),  # 27
    Part.LineSegment(Vector(-17.7, 11.5, 0), Vector(-20.2, 15.8, 0)),  # 28
    Part.ArcOfCircle(Part.Circle(Vector(-22, 14.8, 0), Vector(0, 0, 1), 2), math.radians(30), math.radians(146)),  # 29
    Part.ArcOfCircle(Part.Circle(Vector(0, 0, 0), Vector(0, 0, 1), 28.5), math.radians(145.96), math.radians(154.04)),  # 30
    Part.ArcOfCircle(Part.Circle(Vector(-23.8, 11.6, 0), Vector(0, 0, 1), 2), math.radians(154), math.radians(270)),  # 31
    Part.LineSegment(Vector(-23.8, 9.6, 0), Vector(-18.8, 9.6, 0)),  # 32
    Part.LineSegment(Vector(-18.8, 9.6, 0), Vector(-13.5, 4.3, 0)),  # 33
    Part.LineSegment(Vector(-13.5, 4.3, 0), Vector(-13.5, -4.3, 0)),  # 34
    Part.LineSegment(Vector(-13.5, -4.3, 0), Vector(-18.8, -9.6, 0)),  # 35
    Part.LineSegment(Vector(-18.8, -9.6, 0), Vector(-23.8, -9.6, 0)),  # 36
    Part.ArcOfCircle(Part.Circle(Vector(-23.8, -11.6, 0), Vector(0, 0, 1), 2), math.radians(90), math.radians(206)),  # 37
    Part.ArcOfCircle(Part.Circle(Vector(0, 0, 0), Vector(0, 0, 1), 28.5), math.radians(-154.04), math.radians(-145.96)),  # 38
    Part.ArcOfCircle(Part.Circle(Vector(-22, -14.8, 0), Vector(0, 0, 1), 2), math.radians(-146), math.radians(-30)),  # 39
    Part.LineSegment(Vector(-20.2, -15.8, 0), Vector(-17.7, -11.5, 0)),  # 40
    Part.LineSegment(Vector(-17.7, -11.5, 0), Vector(-10.5, -9.5, 0)),  # 41
    Part.LineSegment(Vector(-10.5, -9.5, 0), Vector(-3, -13.8, 0)),  # 42
    Part.LineSegment(Vector(-3, -13.8, 0), Vector(-1.1, -21.1, 0)),  # 43
    Part.LineSegment(Vector(-1.1, -21.1, 0), Vector(-3.6, -25.4, 0)),  # 44
    Part.ArcOfCircle(Part.Circle(Vector(-1.9, -26.4, 0), Vector(0, 0, 1), 2), math.radians(150), math.radians(266)),  # 45
    Part.ArcOfCircle(Part.Circle(Vector(0, 0, 0), Vector(0, 0, 1), 28.5), math.radians(-94.04), math.radians(-85.96)),  # 46
    Part.ArcOfCircle(Part.Circle(Vector(1.9, -26.4, 0), Vector(0, 0, 1), 2), math.radians(-86), math.radians(30)),  # 47
], False)
sketch17.addConstraint([
    Sketcher.Constraint("Coincident", 0, 2, 1, 1),
    Sketcher.Constraint("Coincident", 1, 2, 2, 1),
    Sketcher.Constraint("Coincident", 2, 2, 3, 1),
    Sketcher.Constraint("Coincident", 3, 2, 4, 1),
    Sketcher.Constraint("Tangent", 4, 2, 5, 1),
    Sketcher.Constraint("Tangent", 5, 2, 6, 1),
    Sketcher.Constraint("Tangent", 6, 2, 7, 1),
    Sketcher.Constraint("Tangent", 7, 2, 8, 1),
    Sketcher.Constraint("Coincident", 8, 2, 9, 1),
    Sketcher.Constraint("Coincident", 9, 2, 10, 1),
    Sketcher.Constraint("Coincident", 10, 2, 11, 1),
    Sketcher.Constraint("Coincident", 11, 2, 12, 1),
    Sketcher.Constraint("Tangent", 12, 2, 13, 1),
    Sketcher.Constraint("Tangent", 13, 2, 14, 1),
    Sketcher.Constraint("Tangent", 14, 2, 15, 1),
    Sketcher.Constraint("Tangent", 15, 2, 16, 1),
    Sketcher.Constraint("Coincident", 16, 2, 17, 1),
    Sketcher.Constraint("Coincident", 17, 2, 18, 1),
    Sketcher.Constraint("Coincident", 18, 2, 19, 1),
    Sketcher.Constraint("Coincident", 19, 2, 20, 1),
    Sketcher.Constraint("Tangent", 20, 2, 21, 1),
    Sketcher.Constraint("Tangent", 21, 2, 22, 1),
    Sketcher.Constraint("Tangent", 22, 2, 23, 1),
    Sketcher.Constraint("Tangent", 23, 2, 24, 1),
    Sketcher.Constraint("Coincident", 24, 2, 25, 1),
    Sketcher.Constraint("Coincident", 25, 2, 26, 1),
    Sketcher.Constraint("Coincident", 26, 2, 27, 1),
    Sketcher.Constraint("Coincident", 27, 2, 28, 1),
    Sketcher.Constraint("Tangent", 28, 2, 29, 1),
    Sketcher.Constraint("Tangent", 29, 2, 30, 1),
    Sketcher.Constraint("Tangent", 30, 2, 31, 1),
    Sketcher.Constraint("Tangent", 31, 2, 32, 1),
    Sketcher.Constraint("Coincident", 32, 2, 33, 1),
    Sketcher.Constraint("Coincident", 33, 2, 34, 1),
    Sketcher.Constraint("Coincident", 34, 2, 35, 1),
    Sketcher.Constraint("Coincident", 35, 2, 36, 1),
    Sketcher.Constraint("Tangent", 36, 2, 37, 1),
    Sketcher.Constraint("Tangent", 37, 2, 38, 1),
    Sketcher.Constraint("Tangent", 38, 2, 39, 1),
    Sketcher.Constraint("Tangent", 39, 2, 40, 1),
    Sketcher.Constraint("Coincident", 40, 2, 41, 1),
    Sketcher.Constraint("Coincident", 41, 2, 42, 1),
    Sketcher.Constraint("Coincident", 42, 2, 43, 1),
    Sketcher.Constraint("Coincident", 43, 2, 44, 1),
    Sketcher.Constraint("Tangent", 44, 2, 45, 1),
    Sketcher.Constraint("Tangent", 45, 2, 46, 1),
    Sketcher.Constraint("Tangent", 46, 2, 47, 1),
    Sketcher.Constraint("Tangent", 47, 2, 0, 1),
    Sketcher.Constraint("Horizontal", 8),
    Sketcher.Constraint("Vertical", 10),
    Sketcher.Constraint("Horizontal", 12),
    Sketcher.Constraint("Horizontal", 32),
    Sketcher.Constraint("Vertical", 34),
    Sketcher.Constraint("Horizontal", 36),
    Sketcher.Constraint("Coincident", 6, 3, -1, 1),
    Sketcher.Constraint("Coincident", 14, 3, -1, 1),
    Sketcher.Constraint("Coincident", 22, 3, -1, 1),
    Sketcher.Constraint("Coincident", 30, 3, -1, 1),
    Sketcher.Constraint("Coincident", 38, 3, -1, 1),
    Sketcher.Constraint("Coincident", 46, 3, -1, 1),
    Sketcher.Constraint("Equal", 5, 7),
    Sketcher.Constraint("Equal", 7, 13),
    Sketcher.Constraint("Equal", 6, 14),
    Sketcher.Constraint("Equal", 13, 15),
    Sketcher.Constraint("Equal", 15, 21),
    Sketcher.Constraint("Equal", 14, 22),
    Sketcher.Constraint("Equal", 21, 23),
    Sketcher.Constraint("Equal", 23, 29),
    Sketcher.Constraint("Equal", 22, 30),
    Sketcher.Constraint("Equal", 29, 31),
    Sketcher.Constraint("Equal", 31, 37),
    Sketcher.Constraint("Equal", 30, 38),
    Sketcher.Constraint("Equal", 37, 39),
    Sketcher.Constraint("Equal", 39, 45),
    Sketcher.Constraint("Equal", 38, 46),
    Sketcher.Constraint("Equal", 45, 47),
    Sketcher.Constraint("Symmetric", 0, 2, 24, 2, -1, 1),
    Sketcher.Constraint("Symmetric", 1, 2, 25, 2, -1, 1),
    Sketcher.Constraint("Symmetric", 2, 2, 26, 2, -1, 1),
    Sketcher.Constraint("Symmetric", 3, 2, 27, 2, -1, 1),
    Sketcher.Constraint("Symmetric", 8, 2, 32, 2, -1, 1),
    Sketcher.Constraint("Symmetric", 9, 2, 33, 2, -1, 1),
    Sketcher.Constraint("Symmetric", 11, 2, 35, 2, -1, 1),
    Sketcher.Constraint("Symmetric", 15, 2, 39, 2, -1, 1),
    Sketcher.Constraint("Symmetric", 17, 2, 41, 2, -1, 1),
    Sketcher.Constraint("Symmetric", 18, 2, 42, 2, -1, 1),
    Sketcher.Constraint("Symmetric", 19, 2, 43, 2, -1, 1),
    Sketcher.Constraint("Symmetric", 20, 2, 23, 2, -2),
    Sketcher.Constraint("Symmetric", 18, 2, 25, 2, -2),
    Sketcher.Constraint("Symmetric", 17, 2, 26, 2, -2),
    Sketcher.Constraint("Symmetric", 16, 2, 27, 2, -2),
    Sketcher.Constraint("Symmetric", 11, 2, 32, 2, -2),
    Sketcher.Constraint("Perpendicular", 0, 2),
    Sketcher.Constraint("Perpendicular", 1, 3),
    Sketcher.Constraint("Perpendicular", 2, 4),
    Sketcher.Constraint("Perpendicular", 9, 11),
    Sketcher.Constraint("Perpendicular", 16, 18),
    Sketcher.Constraint("Perpendicular", 17, 19),
    Sketcher.Constraint("Perpendicular", 18, 20),
    Sketcher.Constraint("Perpendicular", 26, 28),
    Sketcher.Constraint("Perpendicular", 33, 35),
    Sketcher.Constraint("Perpendicular", 19, 41),
    Sketcher.Constraint("Perpendicular", 42, 44),
    Sketcher.Constraint("Horizontal", 10, 2, 33, 2),
    Sketcher.Constraint("Equal", 1, 3),
    Sketcher.Constraint("Equal", 0, 4),
    Sketcher.Constraint("Equal", 3, 9),
    Sketcher.Constraint("Radius", 5, Q("2 mm")),
    Sketcher.Constraint("Radius", 6, Q("28.5 mm")),
    Sketcher.Constraint("Angle", 0, Q("120 deg")),
    Sketcher.Constraint("Angle", 1, Q("75 deg")),
    Sketcher.Constraint("DistanceY", 10, 1, 10, 2, Q("8.6 mm")),
    Sketcher.Constraint("Distance", 2, Q("8.6 mm")),
    Sketcher.Constraint("DistanceY", 7, 3, -1, 1, Q("11.6 mm")),
    Sketcher.Constraint("DistanceX", -1, 1, 8, 2, Q("18.8 mm")),
    Sketcher.Constraint("DistanceX", -1, 1, 1, 2, Q("3.026091 mm")),
])
pocket9 = doc.addObject("PartDesign::Pocket", "Pocket008")
body.addObject(pocket9)
pocket9.Profile = sketch17
pocket9.Length = 10
doc.recompute()

chamfer2 = doc.addObject("PartDesign::Chamfer", "Chamfer001")
body.addObject(chamfer2)
chamfer2.Base = (pocket9, edges_at(pocket9, [
    (-6, 1.85, -10.392),
    (-12, 1.85, 0),
    (-6, 1.85, 10.392),
    (6, 1.85, 10.392),
    (12, 1.85, 0),
    (6, 1.85, -10.392),
]))
chamfer2.Size = 1

doc.recompute()
